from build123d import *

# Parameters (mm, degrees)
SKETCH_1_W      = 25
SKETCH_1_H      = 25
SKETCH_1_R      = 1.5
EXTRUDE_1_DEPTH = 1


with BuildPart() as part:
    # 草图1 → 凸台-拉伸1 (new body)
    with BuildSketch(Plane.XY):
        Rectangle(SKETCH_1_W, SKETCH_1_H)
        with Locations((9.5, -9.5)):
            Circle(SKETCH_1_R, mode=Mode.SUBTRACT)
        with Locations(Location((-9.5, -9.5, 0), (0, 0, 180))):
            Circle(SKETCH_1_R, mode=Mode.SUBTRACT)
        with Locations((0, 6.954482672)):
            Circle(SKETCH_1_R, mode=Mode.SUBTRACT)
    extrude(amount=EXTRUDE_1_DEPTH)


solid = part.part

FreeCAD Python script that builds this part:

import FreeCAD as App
import Part
import Sketcher
from FreeCAD import Vector

doc = App.newDocument("Part")
params = doc.addObject("Spreadsheet::Sheet", "Params")
for row, (alias, value) in enumerate([
    ("sketch1_diameter", "3 mm"),
    ("sketch1_width", "25 mm"),
    ("pad1_length", "1 mm"),
], start=1):
    params.set(f"A{row}", alias)
    params.set(f"B{row}", "=" + value)
    params.setAlias(f"B{row}", alias)

body = doc.addObject("PartDesign::Body", "Body")

# Sketch on XY plane
sketch1 = body.newObject("Sketcher::SketchObject", "Sketch")
sketch1.AttachmentSupport = (doc.getObject("XY_Plane"), [""])
sketch1.MapMode = "FlatFace"
sketch1.addGeometry(Part.LineSegment(Vector(-12.5, 12.5, 0), Vector(-12.5, -12.5, 0)), False)
sketch1.addGeometry(Part.LineSegment(Vector(-12.5, -12.5, 0), Vector(12.5, -12.5, 0)), False)
sketch1.addGeometry(Part.LineSegment(Vector(12.5, -12.5, 0), Vector(12.5, 12.5, 0)), False)
sketch1.addGeometry(Part.LineSegment(Vector(12.5, 12.5, 0), Vector(-12.5, 12.5, 0)), False)
sketch1.addGeometry(Part.Circle(Vector(-9.5, -9.5, 0), Vector(0, 0, 1), 1.5), False)
sketch1.addGeometry(Part.Circle(Vector(9.5, -9.5, 0), Vector(0, 0, 1), 1.5), False)
sketch1.addGeometry(Part.Circle(Vector(0, 6.954483, 0), Vector(0, 0, 1), 1.5), False)
sketch1.addConstraint(Sketcher.Constraint("Coincident", 0, 2, 1, 1))
sketch1.addConstraint(Sketcher.Constraint("Coincident", 1, 2, 2, 1))
sketch1.addConstraint(Sketcher.Constraint("Coincident", 2, 2, 3, 1))
sketch1.addConstraint(Sketcher.Constraint("Coincident", 3, 2, 0, 1))
sketch1.addConstraint(Sketcher.Constraint("Vertical", 0))
sketch1.addConstraint(Sketcher.Constraint("Horizontal", 1))
sketch1.addConstraint(Sketcher.Constraint("Vertical", 2))
sketch1.addConstraint(Sketcher.Constraint("Horizontal", 3))
sketch1.addConstraint(Sketcher.Constraint("Equal", 4, 5))
sketch1.addConstraint(Sketcher.Constraint("Equal", 5, 6))
sketch1.addConstraint(Sketcher.Constraint("Symmetric", 0, 2, 2, 2, -1, 1))
sketch1.addConstraint(Sketcher.Constraint("Symmetric", 4, 3, 5, 3, -2))
sketch1.addConstraint(Sketcher.Constraint("PointOnObject", 6, 3, -2))
sketch1.addConstraint(Sketcher.Constraint("Equal", 3, 0))
sketch1.addConstraint(Sketcher.Constraint("Diameter", 4, 3.0))
sketch1.addConstraint(Sketcher.Constraint("DistanceX", 1, 1, 1, 2, 25.0))
sketch1.addConstraint(Sketcher.Constraint("DistanceX", 4, 3, 5, 3, 19.0))
sketch1.addConstraint(Sketcher.Constraint("DistanceY", 0, 2, 4, 3, 3.0))
sketch1.addConstraint(Sketcher.Constraint("DistanceY", -1, 1, 6, 3, 6.954483))
sketch1.setExpression("Constraints[14]", "Params.sketch1_diameter")
sketch1.setExpression("Constraints[15]", "Params.sketch1_width")
pad1 = body.newObject("PartDesign::Pad", "Pad")
pad1.Profile = sketch1
pad1.setExpression("Length", "Params.pad1_length")

doc.recompute()
